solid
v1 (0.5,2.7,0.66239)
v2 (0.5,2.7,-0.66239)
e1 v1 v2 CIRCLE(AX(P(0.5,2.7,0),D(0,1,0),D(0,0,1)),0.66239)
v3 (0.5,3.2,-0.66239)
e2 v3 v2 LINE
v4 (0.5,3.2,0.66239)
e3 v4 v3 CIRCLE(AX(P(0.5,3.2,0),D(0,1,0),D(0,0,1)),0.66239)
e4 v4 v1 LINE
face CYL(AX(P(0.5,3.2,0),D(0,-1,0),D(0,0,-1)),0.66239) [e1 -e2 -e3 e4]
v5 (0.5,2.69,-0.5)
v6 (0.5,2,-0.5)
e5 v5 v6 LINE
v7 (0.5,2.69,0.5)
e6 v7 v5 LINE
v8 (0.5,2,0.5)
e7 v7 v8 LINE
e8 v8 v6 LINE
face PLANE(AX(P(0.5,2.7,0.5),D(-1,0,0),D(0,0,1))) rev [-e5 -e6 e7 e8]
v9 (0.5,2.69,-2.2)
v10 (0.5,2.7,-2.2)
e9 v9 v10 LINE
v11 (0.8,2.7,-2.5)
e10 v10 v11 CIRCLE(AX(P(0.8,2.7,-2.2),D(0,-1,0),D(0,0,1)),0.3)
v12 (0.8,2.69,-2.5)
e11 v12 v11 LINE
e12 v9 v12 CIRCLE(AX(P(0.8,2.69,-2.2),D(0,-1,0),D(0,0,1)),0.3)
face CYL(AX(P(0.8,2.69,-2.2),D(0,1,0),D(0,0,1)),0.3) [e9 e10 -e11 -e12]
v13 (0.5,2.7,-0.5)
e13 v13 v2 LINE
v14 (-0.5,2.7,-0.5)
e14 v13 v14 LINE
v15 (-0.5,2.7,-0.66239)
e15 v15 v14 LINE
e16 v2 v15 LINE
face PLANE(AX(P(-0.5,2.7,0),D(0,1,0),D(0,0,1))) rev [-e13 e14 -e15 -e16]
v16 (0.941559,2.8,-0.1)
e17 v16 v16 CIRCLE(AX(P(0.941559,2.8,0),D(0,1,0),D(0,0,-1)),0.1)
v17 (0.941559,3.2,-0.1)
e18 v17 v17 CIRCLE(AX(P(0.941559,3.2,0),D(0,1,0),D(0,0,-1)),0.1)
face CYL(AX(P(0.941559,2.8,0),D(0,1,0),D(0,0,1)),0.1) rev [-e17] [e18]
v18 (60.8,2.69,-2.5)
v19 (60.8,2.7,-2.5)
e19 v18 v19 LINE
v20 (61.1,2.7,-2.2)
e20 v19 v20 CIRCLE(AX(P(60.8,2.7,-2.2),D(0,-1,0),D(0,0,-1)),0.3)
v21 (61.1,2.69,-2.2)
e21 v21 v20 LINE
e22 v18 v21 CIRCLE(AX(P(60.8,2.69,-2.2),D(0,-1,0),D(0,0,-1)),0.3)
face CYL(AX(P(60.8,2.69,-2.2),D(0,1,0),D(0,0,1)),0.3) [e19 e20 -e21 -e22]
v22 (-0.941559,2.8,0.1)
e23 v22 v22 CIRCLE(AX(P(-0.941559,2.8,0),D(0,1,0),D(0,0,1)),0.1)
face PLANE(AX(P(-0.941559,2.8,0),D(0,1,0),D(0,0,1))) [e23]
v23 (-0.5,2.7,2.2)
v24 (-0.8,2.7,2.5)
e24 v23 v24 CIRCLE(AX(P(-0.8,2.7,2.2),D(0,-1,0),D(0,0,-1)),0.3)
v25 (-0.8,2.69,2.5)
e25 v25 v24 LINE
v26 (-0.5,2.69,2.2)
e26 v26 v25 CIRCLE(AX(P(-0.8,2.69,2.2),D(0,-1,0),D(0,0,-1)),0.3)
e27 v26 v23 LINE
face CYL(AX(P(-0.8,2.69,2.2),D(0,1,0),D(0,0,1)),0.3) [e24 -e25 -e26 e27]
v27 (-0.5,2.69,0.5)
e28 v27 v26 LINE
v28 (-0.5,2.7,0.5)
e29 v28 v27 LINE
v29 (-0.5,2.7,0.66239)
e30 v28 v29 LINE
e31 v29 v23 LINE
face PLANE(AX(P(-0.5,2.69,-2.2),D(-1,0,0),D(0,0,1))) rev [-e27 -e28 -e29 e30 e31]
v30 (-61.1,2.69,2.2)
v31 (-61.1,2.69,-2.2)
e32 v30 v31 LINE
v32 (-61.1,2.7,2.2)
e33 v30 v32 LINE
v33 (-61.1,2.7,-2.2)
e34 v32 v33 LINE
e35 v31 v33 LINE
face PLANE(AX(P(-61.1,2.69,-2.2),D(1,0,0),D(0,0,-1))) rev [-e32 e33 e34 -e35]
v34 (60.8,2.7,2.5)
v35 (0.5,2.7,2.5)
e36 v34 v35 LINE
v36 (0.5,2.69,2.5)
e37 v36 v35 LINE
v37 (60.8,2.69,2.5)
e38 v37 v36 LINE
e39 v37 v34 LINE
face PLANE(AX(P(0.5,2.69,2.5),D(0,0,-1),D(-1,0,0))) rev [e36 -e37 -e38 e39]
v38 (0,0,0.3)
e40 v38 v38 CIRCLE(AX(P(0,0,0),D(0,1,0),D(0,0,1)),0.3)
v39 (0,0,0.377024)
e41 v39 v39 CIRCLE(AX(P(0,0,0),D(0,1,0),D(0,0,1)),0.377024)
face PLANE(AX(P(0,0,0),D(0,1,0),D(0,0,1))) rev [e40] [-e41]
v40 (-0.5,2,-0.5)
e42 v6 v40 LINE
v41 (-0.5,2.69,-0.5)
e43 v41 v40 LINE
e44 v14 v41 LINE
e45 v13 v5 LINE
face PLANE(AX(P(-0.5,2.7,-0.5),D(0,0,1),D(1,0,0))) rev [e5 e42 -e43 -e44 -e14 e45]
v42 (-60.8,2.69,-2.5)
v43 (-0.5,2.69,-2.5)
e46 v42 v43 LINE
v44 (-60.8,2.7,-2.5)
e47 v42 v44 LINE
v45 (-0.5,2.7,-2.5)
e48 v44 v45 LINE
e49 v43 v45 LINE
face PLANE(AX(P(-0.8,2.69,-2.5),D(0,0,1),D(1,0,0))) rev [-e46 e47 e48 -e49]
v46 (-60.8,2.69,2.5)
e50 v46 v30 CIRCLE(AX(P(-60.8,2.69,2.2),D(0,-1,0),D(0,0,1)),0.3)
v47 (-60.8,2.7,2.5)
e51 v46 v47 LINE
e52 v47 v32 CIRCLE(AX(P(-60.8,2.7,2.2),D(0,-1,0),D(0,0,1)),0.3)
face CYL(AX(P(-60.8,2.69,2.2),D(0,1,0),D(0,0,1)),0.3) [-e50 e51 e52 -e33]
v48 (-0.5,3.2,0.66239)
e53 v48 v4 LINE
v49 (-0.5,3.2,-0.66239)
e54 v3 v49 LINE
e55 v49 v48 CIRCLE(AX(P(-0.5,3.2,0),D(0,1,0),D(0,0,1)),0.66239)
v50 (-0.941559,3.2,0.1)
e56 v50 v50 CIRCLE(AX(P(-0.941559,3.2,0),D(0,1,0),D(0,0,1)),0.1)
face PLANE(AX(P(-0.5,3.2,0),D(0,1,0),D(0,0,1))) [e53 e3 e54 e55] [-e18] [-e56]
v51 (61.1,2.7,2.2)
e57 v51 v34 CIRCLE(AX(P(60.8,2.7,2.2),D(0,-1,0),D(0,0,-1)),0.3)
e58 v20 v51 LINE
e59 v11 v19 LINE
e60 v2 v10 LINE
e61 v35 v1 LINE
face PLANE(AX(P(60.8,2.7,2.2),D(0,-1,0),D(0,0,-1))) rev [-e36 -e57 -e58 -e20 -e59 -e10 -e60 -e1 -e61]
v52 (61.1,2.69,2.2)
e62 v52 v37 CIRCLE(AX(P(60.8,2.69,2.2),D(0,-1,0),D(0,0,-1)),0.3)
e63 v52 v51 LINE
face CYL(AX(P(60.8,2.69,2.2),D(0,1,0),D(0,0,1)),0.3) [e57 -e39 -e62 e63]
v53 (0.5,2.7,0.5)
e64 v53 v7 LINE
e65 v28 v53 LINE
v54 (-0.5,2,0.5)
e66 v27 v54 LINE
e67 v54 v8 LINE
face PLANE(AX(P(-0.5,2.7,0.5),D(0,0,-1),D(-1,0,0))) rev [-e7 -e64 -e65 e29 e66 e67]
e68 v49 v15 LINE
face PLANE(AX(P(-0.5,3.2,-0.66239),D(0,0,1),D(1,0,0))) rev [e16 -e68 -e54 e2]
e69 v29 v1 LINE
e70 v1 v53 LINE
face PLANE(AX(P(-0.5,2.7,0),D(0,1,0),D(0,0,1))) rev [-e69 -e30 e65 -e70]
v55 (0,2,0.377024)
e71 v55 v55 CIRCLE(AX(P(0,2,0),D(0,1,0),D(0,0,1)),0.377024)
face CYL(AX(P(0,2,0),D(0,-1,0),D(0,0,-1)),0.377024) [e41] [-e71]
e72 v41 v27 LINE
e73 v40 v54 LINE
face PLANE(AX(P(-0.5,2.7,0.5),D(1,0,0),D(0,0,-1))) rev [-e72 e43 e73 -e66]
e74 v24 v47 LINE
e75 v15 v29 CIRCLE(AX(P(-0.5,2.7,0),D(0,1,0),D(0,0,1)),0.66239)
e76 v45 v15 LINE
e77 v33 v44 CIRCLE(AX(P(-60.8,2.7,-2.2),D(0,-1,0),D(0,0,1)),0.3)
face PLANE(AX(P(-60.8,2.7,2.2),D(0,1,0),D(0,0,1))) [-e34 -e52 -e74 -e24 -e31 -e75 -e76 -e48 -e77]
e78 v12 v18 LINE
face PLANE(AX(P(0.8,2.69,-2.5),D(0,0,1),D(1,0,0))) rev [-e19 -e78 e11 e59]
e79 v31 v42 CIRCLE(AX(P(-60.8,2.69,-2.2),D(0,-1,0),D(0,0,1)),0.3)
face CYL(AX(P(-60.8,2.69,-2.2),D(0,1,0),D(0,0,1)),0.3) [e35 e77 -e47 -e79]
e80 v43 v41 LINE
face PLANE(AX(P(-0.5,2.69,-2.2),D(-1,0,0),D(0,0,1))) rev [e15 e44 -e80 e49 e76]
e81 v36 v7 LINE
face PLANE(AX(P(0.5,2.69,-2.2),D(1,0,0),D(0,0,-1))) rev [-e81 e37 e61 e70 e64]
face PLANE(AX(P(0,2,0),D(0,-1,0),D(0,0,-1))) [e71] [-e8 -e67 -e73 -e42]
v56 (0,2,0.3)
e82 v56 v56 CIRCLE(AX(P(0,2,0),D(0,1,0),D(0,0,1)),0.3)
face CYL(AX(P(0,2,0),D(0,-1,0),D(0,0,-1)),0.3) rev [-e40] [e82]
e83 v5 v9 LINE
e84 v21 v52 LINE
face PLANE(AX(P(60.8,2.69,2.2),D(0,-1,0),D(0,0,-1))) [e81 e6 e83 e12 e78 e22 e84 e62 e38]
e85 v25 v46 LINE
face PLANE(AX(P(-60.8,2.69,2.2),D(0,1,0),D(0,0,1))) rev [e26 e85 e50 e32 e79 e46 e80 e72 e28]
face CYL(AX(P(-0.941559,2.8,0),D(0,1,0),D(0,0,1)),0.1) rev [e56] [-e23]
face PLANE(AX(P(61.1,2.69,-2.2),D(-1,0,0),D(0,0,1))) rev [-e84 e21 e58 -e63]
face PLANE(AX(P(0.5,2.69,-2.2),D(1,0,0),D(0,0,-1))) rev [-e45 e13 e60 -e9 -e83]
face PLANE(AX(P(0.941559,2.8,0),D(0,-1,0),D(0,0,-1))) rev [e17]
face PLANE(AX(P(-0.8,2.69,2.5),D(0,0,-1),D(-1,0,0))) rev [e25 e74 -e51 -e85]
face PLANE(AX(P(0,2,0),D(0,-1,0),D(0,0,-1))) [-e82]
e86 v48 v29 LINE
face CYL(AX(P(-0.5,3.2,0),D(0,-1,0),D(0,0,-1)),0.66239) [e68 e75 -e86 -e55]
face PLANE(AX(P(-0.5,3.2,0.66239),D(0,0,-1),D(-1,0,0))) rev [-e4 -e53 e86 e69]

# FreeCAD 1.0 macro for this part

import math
import FreeCAD as App
import Part
import Sketcher

V = App.Vector
Q = App.Units.Quantity

doc = App.newDocument("Part")
body = doc.addObject("PartDesign::Body", "Body")

# Sketch on XZ plane
sketch1 = body.newObject("Sketcher::SketchObject", "Sketch")
sketch1.AttachmentSupport = (doc.getObject("XZ_Plane"), [""])
sketch1.MapMode = "FlatFace"
sketch1.addGeometry(Part.Circle(V(0, 0, 0), V(0, 0, 1), 0.377024), False)
sketch1.addGeometry(Part.Circle(V(0, 0, 0), V(0, 0, 1), 0.3), False)
sketch1.addConstraint(Sketcher.Constraint("Coincident", 0, 3, -1, 1))
sketch1.addConstraint(Sketcher.Constraint("Coincident", 1, 3, -1, 1))
sketch1.addConstraint(Sketcher.Constraint("Diameter", 1, Q("0.6 mm")))
sketch1.addConstraint(Sketcher.Constraint("Diameter", 0, Q("0.754048 mm")))
pad1 = body.newObject("PartDesign::Pad", "Pad")
pad1.Profile = sketch1
pad1.Length = 2
pad1.Reversed = True

# Sketch on XZ plane
sketch2 = body.newObject("Sketcher::SketchObject", "Sketch001")
sketch2.AttachmentSupport = (doc.getObject("XZ_Plane"), [""])
sketch2.MapMode = "FlatFace"
sketch2.AttachmentOffset = App.Placement(V(0, 0, -2), App.Rotation())
sketch2.addGeometry(Part.LineSegment(V(-0.5, -0.5, 0), V(-0.5, 0.5, 0)), False)
sketch2.addGeometry(Part.LineSegment(V(-0.5, 0.5, 0), V(0.5, 0.5, 0)), False)
sketch2.addGeometry(Part.LineSegment(V(0.5, 0.5, 0), V(0.5, -0.5, 0)), False)
sketch2.addGeometry(Part.LineSegment(V(0.5, -0.5, 0), V(-0.5, -0.5, 0)), False)
sketch2.addConstraint(Sketcher.Constraint("Coincident", 0, 2, 1, 1))
sketch2.addConstraint(Sketcher.Constraint("Coincident", 1, 2, 2, 1))
sketch2.addConstraint(Sketcher.Constraint("Coincident", 2, 2, 3, 1))
sketch2.addConstraint(Sketcher.Constraint("Coincident", 3, 2, 0, 1))
sketch2.addConstraint(Sketcher.Constraint("Vertical", 0))
sketch2.addConstraint(Sketcher.Constraint("Horizontal", 1))
sketch2.addConstraint(Sketcher.Constraint("Vertical", 2))
sketch2.addConstraint(Sketcher.Constraint("Horizontal", 3))
sketch2.addConstraint(Sketcher.Constraint("Symmetric", 0, 2, 2, 2, -1, 1))
sketch2.addConstraint(Sketcher.Constraint("Equal", 3, 0))
sketch2.addConstraint(Sketcher.Constraint("DistanceX", 1, 1, 1, 2, Q("1 mm")))
pad2 = body.newObject("PartDesign::Pad", "Pad001")
pad2.Profile = sketch2
pad2.Length = 0.7
pad2.Reversed = True

# Sketch on XZ plane
sketch3 = body.newObject("Sketcher::SketchObject", "Sketch002")
sketch3.AttachmentSupport = (doc.getObject("XZ_Plane"), [""])
sketch3.MapMode = "FlatFace"
sketch3.AttachmentOffset = App.Placement(V(0, 0, -2.7), App.Rotation())
sketch3.addGeometry(Part.LineSegment(V(0.5, -0.66239, 0), V(-0.5, -0.66239, 0)), False)
sketch3.addGeometry(Part.ArcOfCircle(Part.Circle(V(-0.5, 0, 0), V(0, 0, 1), 0.66239), math.radians(90), math.radians(270)), False)
sketch3.addGeometry(Part.LineSegment(V(-0.5, 0.66239, 0), V(0.5, 0.66239, 0)), False)
sketch3.addGeometry(Part.ArcOfCircle(Part.Circle(V(0.5, 0, 0), V(0, 0, 1), 0.66239), math.radians(-90), math.radians(90)), False)
sketch3.addConstraint(Sketcher.Constraint("Tangent", 0, 2, 1, 2))
sketch3.addConstraint(Sketcher.Constraint("Tangent", 1, 1, 2, 1))
sketch3.addConstraint(Sketcher.Constraint("Tangent", 2, 2, 3, 2))
sketch3.addConstraint(Sketcher.Constraint("Tangent", 3, 1, 0, 1))
sketch3.addConstraint(Sketcher.Constraint("Horizontal", 0))
sketch3.addConstraint(Sketcher.Constraint("Horizontal", 2))
sketch3.addConstraint(Sketcher.Constraint("Symmetric", 1, 3, 3, 3, -1, 1))
sketch3.addConstraint(Sketcher.Constraint("DistanceX", 0, 2, 0, 1, Q("1 mm")))
sketch3.addConstraint(Sketcher.Constraint("Radius", 1, Q("0.66239 mm")))
pad3 = body.newObject("PartDesign::Pad", "Pad002")
pad3.Profile = sketch3
pad3.Length = 0.5
pad3.Reversed = True

# Sketch on XZ plane
sketch4 = body.newObject("Sketcher::SketchObject", "Sketch003")
sketch4.AttachmentSupport = (doc.getObject("XZ_Plane"), [""])
sketch4.MapMode = "FlatFace"
sketch4.AttachmentOffset = App.Placement(V(0, 0, -3.2), App.Rotation())
sketch4.addGeometry(Part.Circle(V(-0.941559, 0, 0), V(0, 0, 1), 0.1), False)
sketch4.addGeometry(Part.Circle(V(0.941559, 0, 0), V(0, 0, 1), 0.1), False)
sketch4.addConstraint(Sketcher.Constraint("Equal", 0, 1))
sketch4.addConstraint(Sketcher.Constraint("Symmetric", 0, 3, 1, 3, -1, 1))
sketch4.addConstraint(Sketcher.Constraint("PointOnObject", 0, 3, -1))
sketch4.addConstraint(Sketcher.Constraint("Diameter", 0, Q("0.2 mm")))
sketch4.addConstraint(Sketcher.Constraint("DistanceX", 0, 3, -1, 1, Q("0.941559 mm")))
pocket1 = body.newObject("PartDesign::Pocket", "Pocket")
pocket1.Profile = sketch4
pocket1.Length = 0.4
pocket1.Reversed = True

# Sketch on XZ plane
sketch5 = body.newObject("Sketcher::SketchObject", "Sketch004")
sketch5.AttachmentSupport = (doc.getObject("XZ_Plane"), [""])
sketch5.MapMode = "FlatFace"
sketch5.AttachmentOffset = App.Placement(V(0, 0, -2.7), App.Rotation())
sketch5.addGeometry(Part.LineSegment(V(0.8, -2.5, 0), V(60.8, -2.5, 0)), False)
sketch5.addGeometry(Part.ArcOfCircle(Part.Circle(V(60.8, -2.2, 0), V(0, 0, 1), 0.3), math.radians(-90), math.radians(0)), False)
sketch5.addGeometry(Part.LineSegment(V(61.1, -2.2, 0), V(61.1, 2.2, 0)), False)
sketch5.addGeometry(Part.ArcOfCircle(Part.Circle(V(60.8, 2.2, 0), V(0, 0, 1), 0.3), math.radians(0), math.radians(90)), False)
sketch5.addGeometry(Part.LineSegment(V(60.8, 2.5, 0), V(0.5, 2.5, 0)), False)
sketch5.addGeometry(Part.LineSegment(V(0.5, 2.5, 0), V(0.5, -2.2, 0)), False)
sketch5.addGeometry(Part.ArcOfCircle(Part.Circle(V(0.8, -2.2, 0), V(0, 0, 1), 0.3), math.radians(-180), math.radians(-90)), False)
sketch5.addGeometry(Part.LineSegment(V(-0.8, 2.5, 0), V(-60.8, 2.5, 0)), False)
sketch5.addGeometry(Part.ArcOfCircle(Part.Circle(V(-60.8, 2.2, 0), V(0, 0, 1), 0.3), math.radians(90), math.radians(180)), False)
sketch5.addGeometry(Part.LineSegment(V(-61.1, 2.2, 0), V(-61.1, -2.2, 0)), False)
sketch5.addGeometry(Part.ArcOfCircle(Part.Circle(V(-60.8, -2.2, 0), V(0, 0, 1), 0.3), math.radians(-180), math.radians(-90)), False)
sketch5.addGeometry(Part.LineSegment(V(-60.8, -2.5, 0), V(-0.5, -2.5, 0)), False)
sketch5.addGeometry(Part.LineSegment(V(-0.5, -2.5, 0), V(-0.5, 2.2, 0)), False)
sketch5.addGeometry(Part.ArcOfCircle(Part.Circle(V(-0.8, 2.2, 0), V(0, 0, 1), 0.3), math.radians(0), math.radians(90)), False)
sketch5.addConstraint(Sketcher.Constraint("Tangent", 0, 2, 1, 1))
sketch5.addConstraint(Sketcher.Constraint("Tangent", 1, 2, 2, 1))
sketch5.addConstraint(Sketcher.Constraint("Tangent", 2, 2, 3, 1))
sketch5.addConstraint(Sketcher.Constraint("Tangent", 3, 2, 4, 1))
sketch5.addConstraint(Sketcher.Constraint("Coincident", 4, 2, 5, 1))
sketch5.addConstraint(Sketcher.Constraint("Tangent", 5, 2, 6, 1))
sketch5.addConstraint(Sketcher.Constraint("Tangent", 6, 2, 0, 1))
sketch5.addConstraint(Sketcher.Constraint("Tangent", 7, 2, 8, 1))
sketch5.addConstraint(Sketcher.Constraint("Tangent", 8, 2, 9, 1))
sketch5.addConstraint(Sketcher.Constraint("Tangent", 9, 2, 10, 1))
sketch5.addConstraint(Sketcher.Constraint("Tangent", 10, 2, 11, 1))
sketch5.addConstraint(Sketcher.Constraint("Coincident", 11, 2, 12, 1))
sketch5.addConstraint(Sketcher.Constraint("Tangent", 12, 2, 13, 1))
sketch5.addConstraint(Sketcher.Constraint("Tangent", 13, 2, 7, 1))
sketch5.addConstraint(Sketcher.Constraint("Horizontal", 0))
sketch5.addConstraint(Sketcher.Constraint("Vertical", 2))
sketch5.addConstraint(Sketcher.Constraint("Horizontal", 4))
sketch5.addConstraint(Sketcher.Constraint("Vertical", 5))
sketch5.addConstraint(Sketcher.Constraint("Horizontal", 7))
sketch5.addConstraint(Sketcher.Constraint("Vertical", 9))
sketch5.addConstraint(Sketcher.Constraint("Horizontal", 11))
sketch5.addConstraint(Sketcher.Constraint("Vertical", 12))
sketch5.addConstraint(Sketcher.Constraint("Equal", 1, 3))
sketch5.addConstraint(Sketcher.Constraint("Equal", 3, 6))
sketch5.addConstraint(Sketcher.Constraint("Equal", 6, 8))
sketch5.addConstraint(Sketcher.Constraint("Equal", 8, 10))
sketch5.addConstraint(Sketcher.Constraint("Equal", 10, 13))
sketch5.addConstraint(Sketcher.Constraint("Symmetric", 1, 3, 8, 3, -1, 1))
sketch5.addConstraint(Sketcher.Constraint("Symmetric", 4, 2, 11, 2, -1, 1))
sketch5.addConstraint(Sketcher.Constraint("Horizontal", 3, 3, 8, 3))
sketch5.addConstraint(Sketcher.Constraint("Radius", 1, Q("0.3 mm")))
sketch5.addConstraint(Sketcher.Constraint("DistanceX", 0, 1, 0, 2, Q("60 mm")))
sketch5.addConstraint(Sketcher.Constraint("DistanceY", 2, 1, 2, 2, Q("4.4 mm")))
sketch5.addConstraint(Sketcher.Constraint("DistanceX", 11, 2, 5, 2, Q("1 mm")))
pad4 = body.newObject("PartDesign::Pad", "Pad003")
pad4.Profile = sketch5
pad4.Length = 0.01

doc.recompute()
